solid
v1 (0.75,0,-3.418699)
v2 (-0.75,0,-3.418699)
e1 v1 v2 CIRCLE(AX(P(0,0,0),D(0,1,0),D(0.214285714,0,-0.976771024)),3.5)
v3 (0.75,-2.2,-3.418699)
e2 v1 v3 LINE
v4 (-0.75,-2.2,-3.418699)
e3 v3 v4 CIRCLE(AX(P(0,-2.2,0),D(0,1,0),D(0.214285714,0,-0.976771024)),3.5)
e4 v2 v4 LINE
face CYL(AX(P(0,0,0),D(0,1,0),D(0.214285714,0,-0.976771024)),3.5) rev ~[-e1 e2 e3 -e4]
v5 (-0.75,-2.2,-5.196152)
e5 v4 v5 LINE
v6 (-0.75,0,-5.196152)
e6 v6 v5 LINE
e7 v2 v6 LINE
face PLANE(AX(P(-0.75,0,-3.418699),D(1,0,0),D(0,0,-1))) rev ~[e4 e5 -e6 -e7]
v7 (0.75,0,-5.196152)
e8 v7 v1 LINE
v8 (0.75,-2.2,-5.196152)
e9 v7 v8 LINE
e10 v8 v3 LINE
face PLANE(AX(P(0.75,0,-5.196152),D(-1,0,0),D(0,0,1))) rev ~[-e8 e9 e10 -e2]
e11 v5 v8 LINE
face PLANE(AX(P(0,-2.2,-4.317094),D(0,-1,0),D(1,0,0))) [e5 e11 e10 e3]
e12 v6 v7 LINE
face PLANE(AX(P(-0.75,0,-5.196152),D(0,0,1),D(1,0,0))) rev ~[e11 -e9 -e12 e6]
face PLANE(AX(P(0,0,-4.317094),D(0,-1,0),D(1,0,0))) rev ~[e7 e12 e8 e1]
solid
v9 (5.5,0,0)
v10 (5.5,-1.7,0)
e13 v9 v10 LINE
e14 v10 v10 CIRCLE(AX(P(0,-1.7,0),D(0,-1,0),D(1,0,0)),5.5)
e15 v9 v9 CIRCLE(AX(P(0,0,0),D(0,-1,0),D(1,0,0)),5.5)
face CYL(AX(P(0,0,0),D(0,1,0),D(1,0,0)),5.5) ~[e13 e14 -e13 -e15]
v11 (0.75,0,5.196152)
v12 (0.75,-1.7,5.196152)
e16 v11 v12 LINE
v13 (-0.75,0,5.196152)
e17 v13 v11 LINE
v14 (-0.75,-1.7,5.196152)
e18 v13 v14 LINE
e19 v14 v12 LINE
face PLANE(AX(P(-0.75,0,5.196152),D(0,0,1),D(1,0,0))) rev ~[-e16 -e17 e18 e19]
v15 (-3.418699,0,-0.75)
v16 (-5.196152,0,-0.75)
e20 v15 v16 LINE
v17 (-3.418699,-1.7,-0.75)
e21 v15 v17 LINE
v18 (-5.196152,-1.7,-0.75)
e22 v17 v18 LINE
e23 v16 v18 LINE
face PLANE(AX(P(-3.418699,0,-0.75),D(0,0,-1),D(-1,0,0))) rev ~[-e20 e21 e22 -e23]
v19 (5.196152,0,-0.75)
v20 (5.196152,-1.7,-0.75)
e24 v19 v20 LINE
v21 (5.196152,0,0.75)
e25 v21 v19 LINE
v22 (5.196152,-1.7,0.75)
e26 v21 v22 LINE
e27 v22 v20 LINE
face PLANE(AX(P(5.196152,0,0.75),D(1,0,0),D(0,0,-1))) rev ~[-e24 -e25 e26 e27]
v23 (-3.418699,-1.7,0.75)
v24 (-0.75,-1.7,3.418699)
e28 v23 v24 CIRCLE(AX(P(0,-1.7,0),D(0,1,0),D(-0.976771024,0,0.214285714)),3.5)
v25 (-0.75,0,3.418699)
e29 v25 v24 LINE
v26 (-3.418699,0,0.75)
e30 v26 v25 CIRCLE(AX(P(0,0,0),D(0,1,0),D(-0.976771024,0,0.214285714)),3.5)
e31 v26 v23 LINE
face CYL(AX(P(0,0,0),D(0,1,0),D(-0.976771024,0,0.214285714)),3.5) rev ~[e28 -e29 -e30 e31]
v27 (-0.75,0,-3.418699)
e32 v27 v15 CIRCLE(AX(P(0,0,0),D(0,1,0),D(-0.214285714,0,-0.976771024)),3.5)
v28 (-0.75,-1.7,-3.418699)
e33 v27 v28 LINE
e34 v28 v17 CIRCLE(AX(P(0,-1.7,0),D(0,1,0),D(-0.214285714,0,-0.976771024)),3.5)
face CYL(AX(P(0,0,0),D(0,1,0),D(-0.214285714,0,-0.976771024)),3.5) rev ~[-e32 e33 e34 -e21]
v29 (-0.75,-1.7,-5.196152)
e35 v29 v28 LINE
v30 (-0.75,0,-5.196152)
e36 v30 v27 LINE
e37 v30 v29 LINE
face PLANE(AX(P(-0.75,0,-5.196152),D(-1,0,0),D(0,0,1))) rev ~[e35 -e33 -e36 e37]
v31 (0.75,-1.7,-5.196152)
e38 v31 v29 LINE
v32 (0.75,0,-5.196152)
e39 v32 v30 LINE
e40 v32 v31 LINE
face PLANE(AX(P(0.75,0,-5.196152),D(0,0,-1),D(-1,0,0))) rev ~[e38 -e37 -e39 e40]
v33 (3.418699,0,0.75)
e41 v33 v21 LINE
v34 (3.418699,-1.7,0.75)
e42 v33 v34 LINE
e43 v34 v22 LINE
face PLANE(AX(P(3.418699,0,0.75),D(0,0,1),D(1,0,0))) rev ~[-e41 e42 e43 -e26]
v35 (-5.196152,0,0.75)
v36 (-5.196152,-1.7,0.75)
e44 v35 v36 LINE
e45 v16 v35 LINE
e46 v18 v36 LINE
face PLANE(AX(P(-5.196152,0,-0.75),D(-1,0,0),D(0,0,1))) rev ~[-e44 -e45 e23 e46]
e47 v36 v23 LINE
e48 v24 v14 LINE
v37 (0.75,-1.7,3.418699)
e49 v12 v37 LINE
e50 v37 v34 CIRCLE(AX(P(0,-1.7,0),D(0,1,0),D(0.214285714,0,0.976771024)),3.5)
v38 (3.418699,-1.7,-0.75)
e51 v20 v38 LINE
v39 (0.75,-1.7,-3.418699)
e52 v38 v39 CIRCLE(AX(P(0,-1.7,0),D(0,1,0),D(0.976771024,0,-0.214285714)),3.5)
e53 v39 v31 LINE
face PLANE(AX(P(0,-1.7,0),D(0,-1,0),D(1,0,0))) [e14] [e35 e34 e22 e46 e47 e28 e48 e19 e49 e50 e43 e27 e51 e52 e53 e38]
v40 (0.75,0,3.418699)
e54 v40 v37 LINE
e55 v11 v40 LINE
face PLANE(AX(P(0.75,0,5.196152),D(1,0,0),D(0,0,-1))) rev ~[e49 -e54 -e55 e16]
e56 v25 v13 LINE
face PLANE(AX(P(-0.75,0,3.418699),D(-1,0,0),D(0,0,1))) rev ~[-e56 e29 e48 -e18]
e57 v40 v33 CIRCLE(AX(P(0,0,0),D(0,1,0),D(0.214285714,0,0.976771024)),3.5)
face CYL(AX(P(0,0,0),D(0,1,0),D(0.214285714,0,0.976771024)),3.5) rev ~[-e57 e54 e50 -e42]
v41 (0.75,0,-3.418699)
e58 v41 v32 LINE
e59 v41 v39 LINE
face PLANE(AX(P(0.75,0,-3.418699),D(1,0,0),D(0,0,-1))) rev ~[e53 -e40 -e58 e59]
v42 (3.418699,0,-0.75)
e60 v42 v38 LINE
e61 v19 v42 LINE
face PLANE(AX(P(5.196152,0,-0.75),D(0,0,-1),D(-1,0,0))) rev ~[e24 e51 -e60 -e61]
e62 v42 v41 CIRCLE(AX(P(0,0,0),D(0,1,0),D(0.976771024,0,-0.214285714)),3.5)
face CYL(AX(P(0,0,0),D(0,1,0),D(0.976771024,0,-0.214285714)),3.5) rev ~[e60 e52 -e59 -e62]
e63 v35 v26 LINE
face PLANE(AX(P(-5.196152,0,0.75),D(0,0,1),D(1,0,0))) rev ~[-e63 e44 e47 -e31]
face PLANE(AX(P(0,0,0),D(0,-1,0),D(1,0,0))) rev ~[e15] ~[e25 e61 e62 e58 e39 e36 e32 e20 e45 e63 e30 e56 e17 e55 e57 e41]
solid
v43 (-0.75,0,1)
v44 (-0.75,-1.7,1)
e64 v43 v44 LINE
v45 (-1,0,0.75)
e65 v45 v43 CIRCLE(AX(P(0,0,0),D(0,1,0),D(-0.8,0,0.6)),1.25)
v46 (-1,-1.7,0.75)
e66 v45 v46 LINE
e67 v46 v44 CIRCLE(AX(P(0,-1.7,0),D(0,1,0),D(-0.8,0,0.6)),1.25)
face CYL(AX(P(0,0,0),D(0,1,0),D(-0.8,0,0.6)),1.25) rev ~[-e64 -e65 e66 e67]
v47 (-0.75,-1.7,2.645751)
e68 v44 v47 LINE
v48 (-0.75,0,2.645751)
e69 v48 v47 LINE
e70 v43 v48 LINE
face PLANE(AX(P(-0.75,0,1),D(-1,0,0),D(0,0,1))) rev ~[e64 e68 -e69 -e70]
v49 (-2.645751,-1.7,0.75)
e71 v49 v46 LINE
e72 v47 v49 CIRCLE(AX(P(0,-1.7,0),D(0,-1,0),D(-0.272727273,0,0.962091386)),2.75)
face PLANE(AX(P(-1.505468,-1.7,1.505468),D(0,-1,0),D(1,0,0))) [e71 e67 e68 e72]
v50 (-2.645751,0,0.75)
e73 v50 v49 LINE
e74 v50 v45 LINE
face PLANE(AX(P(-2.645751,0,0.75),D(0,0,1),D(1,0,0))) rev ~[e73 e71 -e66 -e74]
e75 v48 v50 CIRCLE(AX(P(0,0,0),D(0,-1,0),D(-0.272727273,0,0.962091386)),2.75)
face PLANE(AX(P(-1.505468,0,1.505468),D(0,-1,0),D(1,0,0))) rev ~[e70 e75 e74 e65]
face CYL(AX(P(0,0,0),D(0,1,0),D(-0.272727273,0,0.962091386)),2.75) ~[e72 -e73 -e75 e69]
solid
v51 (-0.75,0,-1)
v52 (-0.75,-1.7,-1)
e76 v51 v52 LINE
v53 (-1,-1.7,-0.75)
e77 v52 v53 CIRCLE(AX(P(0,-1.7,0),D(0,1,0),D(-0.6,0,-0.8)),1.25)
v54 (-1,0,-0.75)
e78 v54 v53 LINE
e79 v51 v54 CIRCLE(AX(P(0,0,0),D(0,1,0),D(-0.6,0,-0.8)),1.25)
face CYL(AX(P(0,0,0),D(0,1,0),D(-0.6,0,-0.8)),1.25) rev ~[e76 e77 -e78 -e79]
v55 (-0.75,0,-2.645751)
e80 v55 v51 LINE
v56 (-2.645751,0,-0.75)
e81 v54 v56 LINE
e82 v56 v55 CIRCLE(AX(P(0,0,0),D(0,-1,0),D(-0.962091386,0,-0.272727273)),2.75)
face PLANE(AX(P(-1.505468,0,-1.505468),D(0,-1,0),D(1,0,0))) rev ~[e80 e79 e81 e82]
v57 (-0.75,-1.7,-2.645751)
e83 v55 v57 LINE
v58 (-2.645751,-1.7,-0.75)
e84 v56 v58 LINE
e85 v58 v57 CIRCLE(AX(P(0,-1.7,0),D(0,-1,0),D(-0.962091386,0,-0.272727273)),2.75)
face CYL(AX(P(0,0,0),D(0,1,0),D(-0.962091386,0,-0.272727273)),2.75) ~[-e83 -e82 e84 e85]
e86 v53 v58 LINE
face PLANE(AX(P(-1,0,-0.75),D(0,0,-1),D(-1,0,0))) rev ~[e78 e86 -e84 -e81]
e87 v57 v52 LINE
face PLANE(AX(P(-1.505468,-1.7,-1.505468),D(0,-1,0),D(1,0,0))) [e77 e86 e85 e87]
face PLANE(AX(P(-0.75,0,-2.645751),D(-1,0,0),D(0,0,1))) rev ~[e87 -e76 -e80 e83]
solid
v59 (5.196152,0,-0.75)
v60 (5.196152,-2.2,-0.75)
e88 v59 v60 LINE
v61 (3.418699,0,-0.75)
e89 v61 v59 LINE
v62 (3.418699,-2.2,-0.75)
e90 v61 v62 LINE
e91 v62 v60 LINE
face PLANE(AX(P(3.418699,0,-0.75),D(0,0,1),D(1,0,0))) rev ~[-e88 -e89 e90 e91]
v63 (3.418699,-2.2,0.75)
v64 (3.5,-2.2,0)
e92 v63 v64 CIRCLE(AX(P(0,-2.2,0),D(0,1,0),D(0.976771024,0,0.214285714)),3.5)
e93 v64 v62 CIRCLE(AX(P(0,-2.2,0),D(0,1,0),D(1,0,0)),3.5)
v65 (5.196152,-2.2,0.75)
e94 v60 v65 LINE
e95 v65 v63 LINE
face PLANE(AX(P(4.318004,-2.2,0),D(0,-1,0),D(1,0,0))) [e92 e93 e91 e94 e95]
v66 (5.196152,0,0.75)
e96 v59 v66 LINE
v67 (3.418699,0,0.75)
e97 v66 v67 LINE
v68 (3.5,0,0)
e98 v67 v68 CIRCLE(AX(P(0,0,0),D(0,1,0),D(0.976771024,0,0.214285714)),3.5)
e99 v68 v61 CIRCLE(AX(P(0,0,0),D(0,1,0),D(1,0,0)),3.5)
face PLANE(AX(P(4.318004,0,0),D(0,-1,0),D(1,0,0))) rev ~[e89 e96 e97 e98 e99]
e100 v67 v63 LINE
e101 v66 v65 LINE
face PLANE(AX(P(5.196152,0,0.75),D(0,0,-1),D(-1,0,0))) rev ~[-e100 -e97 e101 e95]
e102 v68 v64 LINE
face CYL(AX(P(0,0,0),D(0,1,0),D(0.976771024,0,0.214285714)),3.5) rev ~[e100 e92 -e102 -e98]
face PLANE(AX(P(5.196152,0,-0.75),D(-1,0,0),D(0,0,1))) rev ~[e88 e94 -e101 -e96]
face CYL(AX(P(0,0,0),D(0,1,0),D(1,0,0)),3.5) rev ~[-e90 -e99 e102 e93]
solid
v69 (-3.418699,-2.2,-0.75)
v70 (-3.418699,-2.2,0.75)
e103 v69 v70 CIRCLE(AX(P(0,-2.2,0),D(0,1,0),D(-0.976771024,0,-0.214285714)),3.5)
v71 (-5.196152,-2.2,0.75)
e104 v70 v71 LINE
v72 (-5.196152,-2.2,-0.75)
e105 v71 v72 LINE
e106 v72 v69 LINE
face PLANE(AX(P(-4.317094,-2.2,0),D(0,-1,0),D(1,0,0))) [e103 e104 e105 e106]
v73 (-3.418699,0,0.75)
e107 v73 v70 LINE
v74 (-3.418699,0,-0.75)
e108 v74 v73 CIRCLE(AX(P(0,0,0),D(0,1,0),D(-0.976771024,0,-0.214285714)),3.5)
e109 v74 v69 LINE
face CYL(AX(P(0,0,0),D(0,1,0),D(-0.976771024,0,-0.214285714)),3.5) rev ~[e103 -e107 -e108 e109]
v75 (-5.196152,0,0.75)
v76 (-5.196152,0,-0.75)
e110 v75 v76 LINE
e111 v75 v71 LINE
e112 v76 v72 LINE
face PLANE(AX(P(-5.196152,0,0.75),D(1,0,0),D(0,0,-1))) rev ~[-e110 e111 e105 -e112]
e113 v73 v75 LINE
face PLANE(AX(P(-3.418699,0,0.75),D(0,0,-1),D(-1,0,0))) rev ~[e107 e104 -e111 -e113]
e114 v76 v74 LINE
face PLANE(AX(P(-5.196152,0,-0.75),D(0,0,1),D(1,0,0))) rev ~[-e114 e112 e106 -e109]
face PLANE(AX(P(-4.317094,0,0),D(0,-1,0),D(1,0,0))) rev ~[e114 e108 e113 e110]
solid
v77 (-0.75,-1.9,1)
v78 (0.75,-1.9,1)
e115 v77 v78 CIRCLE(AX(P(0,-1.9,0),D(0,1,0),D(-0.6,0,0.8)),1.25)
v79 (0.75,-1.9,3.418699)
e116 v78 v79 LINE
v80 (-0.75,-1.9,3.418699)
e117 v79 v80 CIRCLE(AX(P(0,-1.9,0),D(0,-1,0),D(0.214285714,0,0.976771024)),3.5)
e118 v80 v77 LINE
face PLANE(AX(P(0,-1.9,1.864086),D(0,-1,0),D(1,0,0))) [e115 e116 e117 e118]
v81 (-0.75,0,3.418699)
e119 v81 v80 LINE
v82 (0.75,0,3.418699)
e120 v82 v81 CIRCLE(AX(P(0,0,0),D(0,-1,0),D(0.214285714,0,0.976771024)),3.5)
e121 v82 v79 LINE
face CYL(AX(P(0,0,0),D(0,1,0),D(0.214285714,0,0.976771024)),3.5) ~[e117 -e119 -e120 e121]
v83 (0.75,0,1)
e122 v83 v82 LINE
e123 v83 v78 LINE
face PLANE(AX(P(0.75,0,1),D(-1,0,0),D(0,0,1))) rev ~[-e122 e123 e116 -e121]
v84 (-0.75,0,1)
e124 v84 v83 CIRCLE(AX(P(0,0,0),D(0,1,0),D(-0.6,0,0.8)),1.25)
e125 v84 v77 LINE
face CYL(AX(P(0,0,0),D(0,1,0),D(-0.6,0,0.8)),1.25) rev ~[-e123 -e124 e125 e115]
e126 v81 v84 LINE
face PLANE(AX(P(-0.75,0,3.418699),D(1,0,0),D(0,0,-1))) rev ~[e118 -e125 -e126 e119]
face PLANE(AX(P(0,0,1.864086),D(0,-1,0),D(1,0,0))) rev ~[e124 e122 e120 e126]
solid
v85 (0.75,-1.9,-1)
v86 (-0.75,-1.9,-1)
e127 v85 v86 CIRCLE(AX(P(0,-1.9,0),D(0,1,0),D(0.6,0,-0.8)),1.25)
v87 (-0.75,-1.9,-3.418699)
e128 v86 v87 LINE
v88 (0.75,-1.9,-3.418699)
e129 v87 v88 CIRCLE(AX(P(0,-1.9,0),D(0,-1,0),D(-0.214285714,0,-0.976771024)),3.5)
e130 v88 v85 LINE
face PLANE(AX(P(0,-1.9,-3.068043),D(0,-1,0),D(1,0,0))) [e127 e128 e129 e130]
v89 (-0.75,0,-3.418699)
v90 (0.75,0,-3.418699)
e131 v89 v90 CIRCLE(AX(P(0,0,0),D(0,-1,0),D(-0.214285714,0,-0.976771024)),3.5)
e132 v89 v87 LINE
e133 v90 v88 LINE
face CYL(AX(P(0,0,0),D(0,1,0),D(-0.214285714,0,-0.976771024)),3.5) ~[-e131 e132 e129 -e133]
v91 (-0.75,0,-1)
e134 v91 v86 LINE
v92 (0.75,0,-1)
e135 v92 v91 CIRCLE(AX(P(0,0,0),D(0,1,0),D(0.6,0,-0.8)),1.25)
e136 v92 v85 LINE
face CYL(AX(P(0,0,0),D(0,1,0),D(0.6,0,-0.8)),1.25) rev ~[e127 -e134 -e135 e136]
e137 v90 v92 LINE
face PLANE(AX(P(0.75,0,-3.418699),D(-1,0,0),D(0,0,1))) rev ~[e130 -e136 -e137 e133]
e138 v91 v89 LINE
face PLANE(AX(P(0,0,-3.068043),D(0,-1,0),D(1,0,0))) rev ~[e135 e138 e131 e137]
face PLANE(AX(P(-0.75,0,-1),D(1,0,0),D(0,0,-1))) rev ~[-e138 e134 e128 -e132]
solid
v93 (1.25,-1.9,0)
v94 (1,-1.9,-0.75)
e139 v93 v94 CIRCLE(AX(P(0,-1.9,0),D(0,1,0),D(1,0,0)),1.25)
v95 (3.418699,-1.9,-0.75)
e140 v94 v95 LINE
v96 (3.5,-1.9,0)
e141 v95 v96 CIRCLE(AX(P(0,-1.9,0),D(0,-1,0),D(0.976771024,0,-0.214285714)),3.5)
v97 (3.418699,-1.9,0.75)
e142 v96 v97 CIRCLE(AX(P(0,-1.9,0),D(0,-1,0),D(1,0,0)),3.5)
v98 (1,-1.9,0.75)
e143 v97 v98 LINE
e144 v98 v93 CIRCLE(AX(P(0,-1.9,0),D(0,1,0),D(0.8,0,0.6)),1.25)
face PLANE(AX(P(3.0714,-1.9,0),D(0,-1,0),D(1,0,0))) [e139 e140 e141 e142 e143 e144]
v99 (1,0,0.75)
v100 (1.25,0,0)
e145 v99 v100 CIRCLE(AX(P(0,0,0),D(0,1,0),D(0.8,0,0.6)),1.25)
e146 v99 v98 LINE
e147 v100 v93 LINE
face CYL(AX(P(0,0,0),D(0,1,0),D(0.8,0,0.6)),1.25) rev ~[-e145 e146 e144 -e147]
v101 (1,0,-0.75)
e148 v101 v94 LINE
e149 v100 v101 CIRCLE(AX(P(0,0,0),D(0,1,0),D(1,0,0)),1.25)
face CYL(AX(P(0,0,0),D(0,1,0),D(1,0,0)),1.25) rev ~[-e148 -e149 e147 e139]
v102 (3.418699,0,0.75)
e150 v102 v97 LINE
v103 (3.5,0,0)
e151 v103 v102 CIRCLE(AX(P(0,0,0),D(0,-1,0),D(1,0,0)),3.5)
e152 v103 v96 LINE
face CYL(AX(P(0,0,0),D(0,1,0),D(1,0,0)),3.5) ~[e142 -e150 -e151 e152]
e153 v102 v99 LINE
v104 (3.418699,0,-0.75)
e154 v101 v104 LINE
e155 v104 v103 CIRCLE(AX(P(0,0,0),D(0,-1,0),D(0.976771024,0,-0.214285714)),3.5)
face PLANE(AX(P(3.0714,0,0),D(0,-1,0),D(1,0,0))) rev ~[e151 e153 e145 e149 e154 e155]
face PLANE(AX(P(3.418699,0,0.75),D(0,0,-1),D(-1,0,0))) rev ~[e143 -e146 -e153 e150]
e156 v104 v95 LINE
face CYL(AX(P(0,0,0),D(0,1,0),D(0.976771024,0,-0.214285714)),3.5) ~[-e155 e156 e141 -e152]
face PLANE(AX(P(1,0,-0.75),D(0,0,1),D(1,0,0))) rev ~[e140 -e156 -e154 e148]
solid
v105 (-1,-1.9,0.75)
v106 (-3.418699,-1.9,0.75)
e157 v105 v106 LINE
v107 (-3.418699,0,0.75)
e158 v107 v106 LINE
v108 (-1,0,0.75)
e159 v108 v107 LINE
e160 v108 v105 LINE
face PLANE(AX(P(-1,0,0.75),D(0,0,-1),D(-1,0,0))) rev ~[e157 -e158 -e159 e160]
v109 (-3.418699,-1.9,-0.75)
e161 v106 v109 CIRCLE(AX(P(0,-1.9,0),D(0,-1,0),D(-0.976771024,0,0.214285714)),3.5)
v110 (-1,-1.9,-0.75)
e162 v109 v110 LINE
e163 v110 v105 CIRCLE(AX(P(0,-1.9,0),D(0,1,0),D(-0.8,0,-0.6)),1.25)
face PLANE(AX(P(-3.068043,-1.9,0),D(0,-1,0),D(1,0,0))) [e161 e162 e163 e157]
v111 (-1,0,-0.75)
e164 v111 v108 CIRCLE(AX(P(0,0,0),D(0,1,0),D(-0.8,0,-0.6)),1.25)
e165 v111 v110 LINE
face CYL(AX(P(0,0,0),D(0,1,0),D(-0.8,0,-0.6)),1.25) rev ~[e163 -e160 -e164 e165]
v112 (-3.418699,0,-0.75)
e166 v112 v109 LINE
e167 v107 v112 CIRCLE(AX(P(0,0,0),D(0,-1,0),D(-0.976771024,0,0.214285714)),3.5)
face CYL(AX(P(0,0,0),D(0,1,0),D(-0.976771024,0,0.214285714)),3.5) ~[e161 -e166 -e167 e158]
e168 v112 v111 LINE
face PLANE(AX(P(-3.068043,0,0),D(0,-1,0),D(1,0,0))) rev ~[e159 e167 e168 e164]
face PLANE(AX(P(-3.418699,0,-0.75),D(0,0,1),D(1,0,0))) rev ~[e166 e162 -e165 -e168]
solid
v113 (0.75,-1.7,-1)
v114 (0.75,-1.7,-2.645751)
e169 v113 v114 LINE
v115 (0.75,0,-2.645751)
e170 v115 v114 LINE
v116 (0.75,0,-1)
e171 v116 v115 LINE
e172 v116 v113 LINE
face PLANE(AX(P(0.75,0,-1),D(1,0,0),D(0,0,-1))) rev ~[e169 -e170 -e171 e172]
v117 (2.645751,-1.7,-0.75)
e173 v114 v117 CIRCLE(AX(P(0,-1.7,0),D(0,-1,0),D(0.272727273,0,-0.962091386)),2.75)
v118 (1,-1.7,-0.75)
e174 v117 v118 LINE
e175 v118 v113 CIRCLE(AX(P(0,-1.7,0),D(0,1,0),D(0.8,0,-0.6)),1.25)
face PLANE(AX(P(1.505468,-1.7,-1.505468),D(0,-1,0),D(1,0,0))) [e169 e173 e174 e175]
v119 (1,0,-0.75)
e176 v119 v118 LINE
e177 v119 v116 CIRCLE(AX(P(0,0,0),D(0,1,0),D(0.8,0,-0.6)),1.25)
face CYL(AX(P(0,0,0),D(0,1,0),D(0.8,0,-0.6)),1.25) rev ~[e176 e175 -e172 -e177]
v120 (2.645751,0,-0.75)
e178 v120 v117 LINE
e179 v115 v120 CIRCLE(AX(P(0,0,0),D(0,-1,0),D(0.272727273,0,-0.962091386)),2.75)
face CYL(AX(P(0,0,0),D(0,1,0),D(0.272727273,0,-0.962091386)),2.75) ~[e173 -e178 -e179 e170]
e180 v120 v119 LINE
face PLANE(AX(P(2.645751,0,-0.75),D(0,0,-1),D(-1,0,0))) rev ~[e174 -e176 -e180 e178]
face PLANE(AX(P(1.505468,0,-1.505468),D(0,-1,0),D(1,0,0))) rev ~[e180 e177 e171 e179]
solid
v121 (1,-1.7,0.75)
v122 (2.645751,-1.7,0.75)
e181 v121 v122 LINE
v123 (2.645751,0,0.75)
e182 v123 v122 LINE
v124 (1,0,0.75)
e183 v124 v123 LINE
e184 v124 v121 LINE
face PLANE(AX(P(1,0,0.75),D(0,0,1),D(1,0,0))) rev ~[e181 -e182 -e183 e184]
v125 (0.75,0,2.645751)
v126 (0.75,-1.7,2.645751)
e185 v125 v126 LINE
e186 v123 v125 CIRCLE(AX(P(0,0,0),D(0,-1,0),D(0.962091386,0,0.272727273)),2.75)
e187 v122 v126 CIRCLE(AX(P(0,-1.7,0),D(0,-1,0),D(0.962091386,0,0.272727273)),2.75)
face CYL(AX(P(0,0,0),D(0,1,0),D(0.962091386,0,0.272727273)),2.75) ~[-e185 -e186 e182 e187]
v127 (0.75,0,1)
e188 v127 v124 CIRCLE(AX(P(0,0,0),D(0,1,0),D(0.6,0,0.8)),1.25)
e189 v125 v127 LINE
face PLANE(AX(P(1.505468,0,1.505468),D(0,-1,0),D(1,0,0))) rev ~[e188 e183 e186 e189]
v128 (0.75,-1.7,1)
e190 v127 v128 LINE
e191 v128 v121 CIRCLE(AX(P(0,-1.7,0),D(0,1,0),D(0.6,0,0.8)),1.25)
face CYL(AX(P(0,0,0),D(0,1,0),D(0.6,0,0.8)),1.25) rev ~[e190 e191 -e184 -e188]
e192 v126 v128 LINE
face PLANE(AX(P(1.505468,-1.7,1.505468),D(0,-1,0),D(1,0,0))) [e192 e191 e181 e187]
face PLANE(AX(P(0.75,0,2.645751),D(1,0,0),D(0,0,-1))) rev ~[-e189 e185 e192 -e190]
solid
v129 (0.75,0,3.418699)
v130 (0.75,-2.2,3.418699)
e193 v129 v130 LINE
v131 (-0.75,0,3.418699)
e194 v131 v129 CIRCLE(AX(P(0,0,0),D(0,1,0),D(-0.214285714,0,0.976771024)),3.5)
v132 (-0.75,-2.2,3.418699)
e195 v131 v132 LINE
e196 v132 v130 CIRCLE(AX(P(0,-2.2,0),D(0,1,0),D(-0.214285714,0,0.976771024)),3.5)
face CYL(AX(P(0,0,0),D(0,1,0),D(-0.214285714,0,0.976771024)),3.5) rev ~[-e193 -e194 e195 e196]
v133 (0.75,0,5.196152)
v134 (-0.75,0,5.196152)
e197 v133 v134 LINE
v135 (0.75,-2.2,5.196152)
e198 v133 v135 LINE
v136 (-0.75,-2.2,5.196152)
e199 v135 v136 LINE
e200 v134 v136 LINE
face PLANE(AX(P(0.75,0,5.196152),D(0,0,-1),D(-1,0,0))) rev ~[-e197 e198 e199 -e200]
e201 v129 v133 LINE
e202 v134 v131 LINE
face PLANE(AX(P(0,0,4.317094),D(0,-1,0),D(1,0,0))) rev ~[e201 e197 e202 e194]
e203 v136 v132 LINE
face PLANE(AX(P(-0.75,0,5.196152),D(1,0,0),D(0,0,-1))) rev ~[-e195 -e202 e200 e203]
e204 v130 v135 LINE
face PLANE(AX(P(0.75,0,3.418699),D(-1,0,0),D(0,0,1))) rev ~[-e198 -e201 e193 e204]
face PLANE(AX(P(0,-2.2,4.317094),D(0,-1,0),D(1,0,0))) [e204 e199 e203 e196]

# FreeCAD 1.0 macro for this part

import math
import FreeCAD as App
import Part
import Sketcher

V = App.Vector

doc = App.newDocument("Part")
body = doc.addObject("PartDesign::Body", "Body")

sketch1 = doc.addObject("Sketcher::SketchObject", "Sketch")
body.addObject(sketch1)
sketch1.AttachmentSupport = (doc.XZ_Plane, [""])
sketch1.MapMode = "FlatFace"
sketch1.addGeometry([
    Part.ArcOfCircle(Part.Circle(V(0, 0, 0), V(0, 0, 1), 1.25), math.radians(36.87), math.radians(53.13)),
    Part.LineSegment(V(1, 0.75, 0), V(2.65, 0.75, 0)),
    Part.ArcOfCircle(Part.Circle(V(0, 0, 0), V(0, 0, 1), 2.75), math.radians(16), math.radians(74)),
    Part.LineSegment(V(0.75, 2.65, 0), V(0.75, 1, 0)),
], False)
sketch1.addConstraint([
    Sketcher.Constraint("Coincident", 0, 1, 1, 1),
    Sketcher.Constraint("Coincident", 1, 2, 2, 1),
    Sketcher.Constraint("Coincident", 2, 2, 3, 1),
    Sketcher.Constraint("Coincident", 3, 2, 0, 2),
    Sketcher.Constraint("Horizontal", 1),
    Sketcher.Constraint("Vertical", 3),
    Sketcher.Constraint("Coincident", 0, 3, -1, 1),
    Sketcher.Constraint("Coincident", 2, 3, -1, 1),
    Sketcher.Constraint("Equal", 1, 3),
    Sketcher.Constraint("Radius", 0, 1.25),
    Sketcher.Constraint("Radius", 2, 2.75),
    Sketcher.Constraint("DistanceX", -1, 1, 0, 1, 1.0),
])
pad1 = doc.addObject("PartDesign::Pad", "Pad")
body.addObject(pad1)
pad1.Profile = sketch1
pad1.Length = 1.7
body2 = doc.addObject("PartDesign::Body", "Body001")

sketch2 = doc.addObject("Sketcher::SketchObject", "Sketch001")
body2.addObject(sketch2)
sketch2.AttachmentSupport = (doc.getObject("XZ_Plane001"), [""])
sketch2.MapMode = "FlatFace"
sketch2.addGeometry([
    Part.Circle(V(0, 0, 0), V(0, 0, 1), 5.5),
    Part.LineSegment(V(0.8, 5.2, 0), V(0.8, 3.4, 0)),
    Part.ArcOfCircle(Part.Circle(V(0, 0, 0), V(0, 0, 1), 3.5), math.radians(12), math.radians(78)),
    Part.LineSegment(V(3.4, 0.8, 0), V(5.2, 0.8, 0)),
    Part.LineSegment(V(5.2, 0.8, 0), V(5.2, -0.8, 0)),
    Part.LineSegment(V(5.2, -0.8, 0), V(3.4, -0.8, 0)),
    Part.ArcOfCircle(Part.Circle(V(0, 0, 0), V(0, 0, 1), 3.5), math.radians(-78), math.radians(-12)),
    Part.LineSegment(V(0.8, -3.4, 0), V(0.8, -5.2, 0)),
    Part.LineSegment(V(0.8, -5.2, 0), V(-0.8, -5.2, 0)),
    Part.LineSegment(V(-0.8, -5.2, 0), V(-0.8, -3.4, 0)),
    Part.ArcOfCircle(Part.Circle(V(0, 0, 0), V(0, 0, 1), 3.5), math.radians(-168), math.radians(-102)),
    Part.LineSegment(V(-3.4, -0.8, 0), V(-5.2, -0.8, 0)),
    Part.LineSegment(V(-5.2, -0.8, 0), V(-5.2, 0.8, 0)),
    Part.LineSegment(V(-5.2, 0.8, 0), V(-3.4, 0.8, 0)),
    Part.ArcOfCircle(Part.Circle(V(0, 0, 0), V(0, 0, 1), 3.5), math.radians(102), math.radians(168)),
    Part.LineSegment(V(-0.8, 3.4, 0), V(-0.8, 5.2, 0)),
    Part.LineSegment(V(-0.8, 5.2, 0), V(0.8, 5.2, 0)),
], False)
sketch2.addConstraint([
    Sketcher.Constraint("Coincident", 1, 2, 2, 2),
    Sketcher.Constraint("Coincident", 2, 1, 3, 1),
    Sketcher.Constraint("Coincident", 3, 2, 4, 1),
    Sketcher.Constraint("Coincident", 4, 2, 5, 1),
    Sketcher.Constraint("Coincident", 5, 2, 6, 2),
    Sketcher.Constraint("Coincident", 6, 1, 7, 1),
    Sketcher.Constraint("Coincident", 7, 2, 8, 1),
    Sketcher.Constraint("Coincident", 8, 2, 9, 1),
    Sketcher.Constraint("Coincident", 9, 2, 10, 2),
    Sketcher.Constraint("Coincident", 10, 1, 11, 1),
    Sketcher.Constraint("Coincident", 11, 2, 12, 1),
    Sketcher.Constraint("Coincident", 12, 2, 13, 1),
    Sketcher.Constraint("Coincident", 13, 2, 14, 2),
    Sketcher.Constraint("Coincident", 14, 1, 15, 1),
    Sketcher.Constraint("Coincident", 15, 2, 16, 1),
    Sketcher.Constraint("Coincident", 16, 2, 1, 1),
    Sketcher.Constraint("Vertical", 1),
    Sketcher.Constraint("Horizontal", 3),
    Sketcher.Constraint("Vertical", 4),
    Sketcher.Constraint("Horizontal", 5),
    Sketcher.Constraint("Vertical", 7),
    Sketcher.Constraint("Horizontal", 8),
    Sketcher.Constraint("Vertical", 9),
    Sketcher.Constraint("Horizontal", 11),
    Sketcher.Constraint("Vertical", 12),
    Sketcher.Constraint("Horizontal", 13),
    Sketcher.Constraint("Vertical", 15),
    Sketcher.Constraint("Horizontal", 16),
    Sketcher.Constraint("Coincident", 0, 3, -1, 1),
    Sketcher.Constraint("Coincident", 2, 3, -1, 1),
    Sketcher.Constraint("Coincident", 6, 3, -1, 1),
    Sketcher.Constraint("Coincident", 10, 3, -1, 1),
    Sketcher.Constraint("Coincident", 14, 3, -1, 1),
    Sketcher.Constraint("Equal", 2, 6),
    Sketcher.Constraint("Equal", 6, 10),
    Sketcher.Constraint("Equal", 10, 14),
    Sketcher.Constraint("Symmetric", 3, 2, 11, 2, -1, 1),
    Sketcher.Constraint("Symmetric", 7, 2, 15, 2, -1, 1),
    Sketcher.Constraint("Horizontal", 6, 1, 9, 2),
    Sketcher.Constraint("Horizontal", 5, 2, 10, 1),
    Sketcher.Constraint("Horizontal", 3, 2, 12, 2),
    Sketcher.Constraint("Horizontal", 1, 2, 14, 1),
    Sketcher.Constraint("Equal", 13, 1),
    Sketcher.Constraint("Equal", 16, 4),
    Sketcher.Constraint("Diameter", 0, 11.0),
    Sketcher.Constraint("Radius", 2, 3.5),
    Sketcher.Constraint("DistanceX", 8, 2, 8, 1, 1.5),
    Sketcher.Constraint("DistanceX", 3, 1, 3, 2, 1.777454),
])
pad2 = doc.addObject("PartDesign::Pad", "Pad001")
body2.addObject(pad2)
pad2.Profile = sketch2
pad2.Length = 1.7
body3 = doc.addObject("PartDesign::Body", "Body002")

sketch3 = doc.addObject("Sketcher::SketchObject", "Sketch002")
body3.addObject(sketch3)
sketch3.AttachmentSupport = (doc.getObject("XZ_Plane002"), [""])
sketch3.MapMode = "FlatFace"
sketch3.addGeometry([
    Part.ArcOfCircle(Part.Circle(V(0, 0, 0), V(0, 0, 1), 1.25), math.radians(126.87), math.radians(143.13)),
    Part.LineSegment(V(-0.75, 1, 0), V(-0.75, 2.65, 0)),
    Part.ArcOfCircle(Part.Circle(V(0, 0, 0), V(0, 0, 1), 2.75), math.radians(106), math.radians(164)),
    Part.LineSegment(V(-2.65, 0.75, 0), V(-1, 0.75, 0)),
], False)
sketch3.addConstraint([
    Sketcher.Constraint("Coincident", 0, 1, 1, 1),
    Sketcher.Constraint("Coincident", 1, 2, 2, 1),
    Sketcher.Constraint("Coincident", 2, 2, 3, 1),
    Sketcher.Constraint("Coincident", 3, 2, 0, 2),
    Sketcher.Constraint("Vertical", 1),
    Sketcher.Constraint("Horizontal", 3),
    Sketcher.Constraint("Coincident", 0, 3, -1, 1),
    Sketcher.Constraint("Coincident", 2, 3, -1, 1),
    Sketcher.Constraint("Equal", 3, 1),
    Sketcher.Constraint("Radius", 0, 1.25),
    Sketcher.Constraint("Radius", 2, 2.75),
    Sketcher.Constraint("DistanceY", -1, 1, 0, 1, 1.0),
])
pad3 = doc.addObject("PartDesign::Pad", "Pad002")
body3.addObject(pad3)
pad3.Profile = sketch3
pad3.Length = 1.7
body4 = doc.addObject("PartDesign::Body", "Body003")

sketch4 = doc.addObject("Sketcher::SketchObject", "Sketch003")
body4.addObject(sketch4)
sketch4.AttachmentSupport = (doc.getObject("XZ_Plane003"), [""])
sketch4.MapMode = "FlatFace"
sketch4.addGeometry([
    Part.LineSegment(V(-0.75, -2.65, 0), V(-0.75, -1, 0)),
    Part.ArcOfCircle(Part.Circle(V(0, 0, 0), V(0, 0, 1), 1.25), math.radians(-143.13), math.radians(-126.87)),
    Part.LineSegment(V(-1, -0.75, 0), V(-2.65, -0.75, 0)),
    Part.ArcOfCircle(Part.Circle(V(0, 0, 0), V(0, 0, 1), 2.75), math.radians(-164), math.radians(-106)),
], False)
sketch4.addConstraint([
    Sketcher.Constraint("Coincident", 0, 2, 1, 2),
    Sketcher.Constraint("Coincident", 1, 1, 2, 1),
    Sketcher.Constraint("Coincident", 2, 2, 3, 1),
    Sketcher.Constraint("Coincident", 3, 2, 0, 1),
    Sketcher.Constraint("Vertical", 0),
    Sketcher.Constraint("Horizontal", 2),
    Sketcher.Constraint("Coincident", 1, 3, -1, 1),
    Sketcher.Constraint("Coincident", 3, 3, -1, 1),
    Sketcher.Constraint("Equal", 2, 0),
    Sketcher.Constraint("Radius", 1, 1.25),
    Sketcher.Constraint("Radius", 3, 2.75),
    Sketcher.Constraint("DistanceY", 0, 2, -1, 1, 1.0),
])
pad4 = doc.addObject("PartDesign::Pad", "Pad003")
body4.addObject(pad4)
pad4.Profile = sketch4
pad4.Length = 1.7
body5 = doc.addObject("PartDesign::Body", "Body004")

sketch5 = doc.addObject("Sketcher::SketchObject", "Sketch004")
body5.addObject(sketch5)
sketch5.AttachmentSupport = (doc.getObject("XZ_Plane004"), [""])
sketch5.MapMode = "FlatFace"
sketch5.addGeometry([
    Part.LineSegment(V(2.65, -0.75, 0), V(1, -0.75, 0)),
    Part.ArcOfCircle(Part.Circle(V(0, 0, 0), V(0, 0, 1), 1.25), math.radians(-53.13), math.radians(-36.87)),
    Part.LineSegment(V(0.75, -1, 0), V(0.75, -2.65, 0)),
    Part.ArcOfCircle(Part.Circle(V(0, 0, 0), V(0, 0, 1), 2.75), math.radians(-74), math.radians(-16)),
], False)
sketch5.addConstraint([
    Sketcher.Constraint("Coincident", 0, 2, 1, 2),
    Sketcher.Constraint("Coincident", 1, 1, 2, 1),
    Sketcher.Constraint("Coincident", 2, 2, 3, 1),
    Sketcher.Constraint("Coincident", 3, 2, 0, 1),
    Sketcher.Constraint("Horizontal", 0),
    Sketcher.Constraint("Vertical", 2),
    Sketcher.Constraint("Coincident", 1, 3, -1, 1),
    Sketcher.Constraint("Coincident", 3, 3, -1, 1),
    Sketcher.Constraint("Equal", 0, 2),
    Sketcher.Constraint("Radius", 1, 1.25),
    Sketcher.Constraint("Radius", 3, 2.75),
    Sketcher.Constraint("DistanceX", -1, 1, 0, 2, 1.0),
])
pad5 = doc.addObject("PartDesign::Pad", "Pad004")
body5.addObject(pad5)
pad5.Profile = sketch5
pad5.Length = 1.7
body6 = doc.addObject("PartDesign::Body", "Body005")

sketch6 = doc.addObject("Sketcher::SketchObject", "Sketch005")
body6.addObject(sketch6)
sketch6.AttachmentSupport = (doc.getObject("XZ_Plane005"), [""])
sketch6.MapMode = "FlatFace"
sketch6.addGeometry([
    Part.ArcOfCircle(Part.Circle(V(0, 0, 0), V(0, 0, 1), 3.5), math.radians(168), math.radians(192)),
    Part.LineSegment(V(-3.4, -0.8, 0), V(-1, -0.8, 0)),
    Part.ArcOfCircle(Part.Circle(V(0, 0, 0), V(0, 0, 1), 1.2), math.radians(143), math.radians(217)),
    Part.LineSegment(V(-1, 0.8, 0), V(-3.4, 0.8, 0)),
], False)
sketch6.addConstraint([
    Sketcher.Constraint("Coincident", 0, 2, 1, 1),
    Sketcher.Constraint("Coincident", 1, 2, 2, 2),
    Sketcher.Constraint("Coincident", 2, 1, 3, 1),
    Sketcher.Constraint("Coincident", 3, 2, 0, 1),
    Sketcher.Constraint("Horizontal", 1),
    Sketcher.Constraint("Horizontal", 3),
    Sketcher.Constraint("Coincident", 0, 3, -1, 1),
    Sketcher.Constraint("Coincident", 2, 3, -1, 1),
    Sketcher.Constraint("Vertical", 1, 2, 2, 1),
    Sketcher.Constraint("Radius", 0, 3.5),
    Sketcher.Constraint("Radius", 2, 1.25),
    Sketcher.Constraint("DistanceX", 1, 2, -1, 1, 1.0),
])
pad6 = doc.addObject("PartDesign::Pad", "Pad005")
body6.addObject(pad6)
pad6.Profile = sketch6
pad6.Length = 1.9
body7 = doc.addObject("PartDesign::Body", "Body006")

sketch7 = doc.addObject("Sketcher::SketchObject", "Sketch006")
body7.addObject(sketch7)
sketch7.AttachmentSupport = (doc.getObject("XZ_Plane006"), [""])
sketch7.MapMode = "FlatFace"
sketch7.addGeometry([
    Part.ArcOfCircle(Part.Circle(V(0, 0, 0), V(0, 0, 1), 1.2), math.radians(53), math.radians(127)),
    Part.LineSegment(V(0.8, 1, 0), V(0.8, 3.4, 0)),
    Part.ArcOfCircle(Part.Circle(V(0, 0, 0), V(0, 0, 1), 3.5), math.radians(78), math.radians(102)),
    Part.LineSegment(V(-0.8, 3.4, 0), V(-0.8, 1, 0)),
], False)
sketch7.addConstraint([
    Sketcher.Constraint("Coincident", 0, 1, 1, 1),
    Sketcher.Constraint("Coincident", 1, 2, 2, 1),
    Sketcher.Constraint("Coincident", 2, 2, 3, 1),
    Sketcher.Constraint("Coincident", 3, 2, 0, 2),
    Sketcher.Constraint("Vertical", 1),
    Sketcher.Constraint("Vertical", 3),
    Sketcher.Constraint("Coincident", 0, 3, -1, 1),
    Sketcher.Constraint("Coincident", 2, 3, -1, 1),
    Sketcher.Constraint("Horizontal", 1, 2, 2, 2),
    Sketcher.Constraint("Radius", 2, 3.5),
    Sketcher.Constraint("Radius", 0, 1.25),
    Sketcher.Constraint("DistanceY", -1, 1, 0, 1, 1.0),
])
pad7 = doc.addObject("PartDesign::Pad", "Pad006")
body7.addObject(pad7)
pad7.Profile = sketch7
pad7.Length = 1.9
body8 = doc.addObject("PartDesign::Body", "Body007")

sketch8 = doc.addObject("Sketcher::SketchObject", "Sketch007")
body8.addObject(sketch8)
sketch8.AttachmentSupport = (doc.getObject("XZ_Plane007"), [""])
sketch8.MapMode = "FlatFace"
sketch8.addGeometry([
    Part.LineSegment(V(3.4, 0.8, 0), V(1, 0.8, 0)),
    Part.ArcOfCircle(Part.Circle(V(0, 0, 0), V(0, 0, 1), 1.2), math.radians(0), math.radians(37)),
    Part.ArcOfCircle(Part.Circle(V(0, 0, 0), V(0, 0, 1), 1.2), math.radians(-37), math.radians(0)),
    Part.LineSegment(V(1, -0.8, 0), V(3.4, -0.8, 0)),
    Part.ArcOfCircle(Part.Circle(V(0, 0, 0), V(0, 0, 1), 3.5), math.radians(-12.37), math.radians(0)),
    Part.ArcOfCircle(Part.Circle(V(0, 0, 0), V(0, 0, 1), 3.5), math.radians(0), math.radians(12.37)),
], False)
sketch8.addConstraint([
    Sketcher.Constraint("Coincident", 0, 2, 1, 2),
    Sketcher.Constraint("Tangent", 1, 1, 2, 2),
    Sketcher.Constraint("Coincident", 2, 1, 3, 1),
    Sketcher.Constraint("Coincident", 3, 2, 4, 1),
    Sketcher.Constraint("Tangent", 4, 2, 5, 1),
    Sketcher.Constraint("Coincident", 5, 2, 0, 1),
    Sketcher.Constraint("Horizontal", 0),
    Sketcher.Constraint("Horizontal", 3),
    Sketcher.Constraint("Coincident", 1, 3, -1, 1),
    Sketcher.Constraint("Coincident", 4, 3, -1, 1),
    Sketcher.Constraint("Equal", 1, 2),
    Sketcher.Constraint("Equal", 4, 5),
    Sketcher.Constraint("PointOnObject", 1, 1, -1),
    Sketcher.Constraint("PointOnObject", 4, 2, -1),
    Sketcher.Constraint("Vertical", 0, 2, 2, 1),
    Sketcher.Constraint("Radius", 4, 3.5),
    Sketcher.Constraint("Radius", 1, 1.25),
    Sketcher.Constraint("DistanceX", -1, 1, 0, 2, 1.0),
])
pad8 = doc.addObject("PartDesign::Pad", "Pad007")
body8.addObject(pad8)
pad8.Profile = sketch8
pad8.Length = 1.9
body9 = doc.addObject("PartDesign::Body", "Body008")

sketch9 = doc.addObject("Sketcher::SketchObject", "Sketch008")
body9.addObject(sketch9)
sketch9.AttachmentSupport = (doc.getObject("XZ_Plane008"), [""])
sketch9.MapMode = "FlatFace"
sketch9.addGeometry([
    Part.LineSegment(V(0.8, -3.4, 0), V(0.8, -1, 0)),
    Part.ArcOfCircle(Part.Circle(V(0, 0, 0), V(0, 0, 1), 1.2), math.radians(-127), math.radians(-53)),
    Part.LineSegment(V(-0.8, -1, 0), V(-0.8, -3.4, 0)),
    Part.ArcOfCircle(Part.Circle(V(0, 0, 0), V(0, 0, 1), 3.5), math.radians(-102), math.radians(-78)),
], False)
sketch9.addConstraint([
    Sketcher.Constraint("Coincident", 0, 2, 1, 2),
    Sketcher.Constraint("Coincident", 1, 1, 2, 1),
    Sketcher.Constraint("Coincident", 2, 2, 3, 1),
    Sketcher.Constraint("Coincident", 3, 2, 0, 1),
    Sketcher.Constraint("Vertical", 0),
    Sketcher.Constraint("Vertical", 2),
    Sketcher.Constraint("Coincident", 1, 3, -1, 1),
    Sketcher.Constraint("Coincident", 3, 3, -1, 1),
    Sketcher.Constraint("Horizontal", 0, 2, 1, 1),
    Sketcher.Constraint("Radius", 3, 3.5),
    Sketcher.Constraint("Radius", 1, 1.25),
    Sketcher.Constraint("DistanceY", 0, 2, -1, 1, 1.0),
])
pad9 = doc.addObject("PartDesign::Pad", "Pad008")
body9.addObject(pad9)
pad9.Profile = sketch9
pad9.Length = 1.9
body10 = doc.addObject("PartDesign::Body", "Body009")

sketch10 = doc.addObject("Sketcher::SketchObject", "Sketch009")
body10.addObject(sketch10)
sketch10.AttachmentSupport = (doc.getObject("XZ_Plane009"), [""])
sketch10.MapMode = "FlatFace"
sketch10.addGeometry([
    Part.ArcOfCircle(Part.Circle(V(0, 0, 0), V(0, 0, 1), 3.5), math.radians(168), math.radians(192)),
    Part.LineSegment(V(-3.4, 0.8, 0), V(-5.2, 0.8, 0)),
    Part.LineSegment(V(-5.2, 0.8, 0), V(-5.2, -0.8, 0)),
    Part.LineSegment(V(-5.2, -0.8, 0), V(-3.4, -0.8, 0)),
], False)
sketch10.addConstraint([
    Sketcher.Constraint("Coincident", 0, 1, 1, 1),
    Sketcher.Constraint("Coincident", 1, 2, 2, 1),
    Sketcher.Constraint("Coincident", 2, 2, 3, 1),
    Sketcher.Constraint("Coincident", 3, 2, 0, 2),
    Sketcher.Constraint("Horizontal", 1),
    Sketcher.Constraint("Vertical", 2),
    Sketcher.Constraint("Horizontal", 3),
    Sketcher.Constraint("Coincident", 0, 3, -1, 1),
    Sketcher.Constraint("Vertical", 0, 1, 3, 2),
    Sketcher.Constraint("Radius", 0, 3.5),
    Sketcher.Constraint("DistanceY", 2, 2, 2, 1, 1.5),
    Sketcher.Constraint("DistanceX", 1, 2, 1, 1, 1.777454),
])
pad10 = doc.addObject("PartDesign::Pad", "Pad009")
body10.addObject(pad10)
pad10.Profile = sketch10
pad10.Length = 2.2
body11 = doc.addObject("PartDesign::Body", "Body010")

sketch11 = doc.addObject("Sketcher::SketchObject", "Sketch010")
body11.addObject(sketch11)
sketch11.AttachmentSupport = (doc.getObject("XZ_Plane010"), [""])
sketch11.MapMode = "FlatFace"
sketch11.addGeometry([
    Part.ArcOfCircle(Part.Circle(V(0, 0, 0), V(0, 0, 1), 3.5), math.radians(78), math.radians(102)),
    Part.LineSegment(V(0.8, 3.4, 0), V(0.8, 5.2, 0)),
    Part.LineSegment(V(0.8, 5.2, 0), V(-0.8, 5.2, 0)),
    Part.LineSegment(V(-0.8, 5.2, 0), V(-0.8, 3.4, 0)),
], False)
sketch11.addConstraint([
    Sketcher.Constraint("Coincident", 0, 1, 1, 1),
    Sketcher.Constraint("Coincident", 1, 2, 2, 1),
    Sketcher.Constraint("Coincident", 2, 2, 3, 1),
    Sketcher.Constraint("Coincident", 3, 2, 0, 2),
    Sketcher.Constraint("Vertical", 1),
    Sketcher.Constraint("Horizontal", 2),
    Sketcher.Constraint("Vertical", 3),
    Sketcher.Constraint("Coincident", 0, 3, -1, 1),
    Sketcher.Constraint("Horizontal", 0, 1, 3, 2),
    Sketcher.Constraint("Radius", 0, 3.5),
    Sketcher.Constraint("DistanceX", 2, 2, 2, 1, 1.5),
    Sketcher.Constraint("DistanceY", 1, 1, 1, 2, 1.777454),
])
pad11 = doc.addObject("PartDesign::Pad", "Pad010")
body11.addObject(pad11)
pad11.Profile = sketch11
pad11.Length = 2.2
body12 = doc.addObject("PartDesign::Body", "Body011")

sketch12 = doc.addObject("Sketcher::SketchObject", "Sketch011")
body12.addObject(sketch12)
sketch12.AttachmentSupport = (doc.getObject("XZ_Plane011"), [""])
sketch12.MapMode = "FlatFace"
sketch12.addGeometry([
    Part.LineSegment(V(5.2, 0.8, 0), V(3.4, 0.8, 0)),
    Part.ArcOfCircle(Part.Circle(V(0, 0, 0), V(0, 0, 1), 3.5), math.radians(0), math.radians(12.37)),
    Part.ArcOfCircle(Part.Circle(V(0, 0, 0), V(0, 0, 1), 3.5), math.radians(-12.37), math.radians(0)),
    Part.LineSegment(V(3.4, -0.8, 0), V(5.2, -0.8, 0)),
    Part.LineSegment(V(5.2, -0.8, 0), V(5.2, 0.8, 0)),
], False)
sketch12.addConstraint([
    Sketcher.Constraint("Coincident", 0, 2, 1, 2),
    Sketcher.Constraint("Tangent", 1, 1, 2, 2),
    Sketcher.Constraint("Coincident", 2, 1, 3, 1),
    Sketcher.Constraint("Coincident", 3, 2, 4, 1),
    Sketcher.Constraint("Coincident", 4, 2, 0, 1),
    Sketcher.Constraint("Horizontal", 0),
    Sketcher.Constraint("Horizontal", 3),
    Sketcher.Constraint("Vertical", 4),
    Sketcher.Constraint("Coincident", 1, 3, -1, 1),
    Sketcher.Constraint("Equal", 1, 2),
    Sketcher.Constraint("PointOnObject", 1, 1, -1),
    Sketcher.Constraint("Vertical", 0, 2, 2, 1),
    Sketcher.Constraint("Radius", 1, 3.5),
    Sketcher.Constraint("DistanceY", 4, 1, 4, 2, 1.5),
    Sketcher.Constraint("DistanceX", 0, 2, 0, 1, 1.777454),
])
pad12 = doc.addObject("PartDesign::Pad", "Pad011")
body12.addObject(pad12)
pad12.Profile = sketch12
pad12.Length = 2.2
body13 = doc.addObject("PartDesign::Body", "Body012")

sketch13 = doc.addObject("Sketcher::SketchObject", "Sketch012")
body13.addObject(sketch13)
sketch13.AttachmentSupport = (doc.getObject("XZ_Plane012"), [""])
sketch13.MapMode = "FlatFace"
sketch13.addGeometry([
    Part.LineSegment(V(0.8, -5.2, 0), V(0.8, -3.4, 0)),
    Part.ArcOfCircle(Part.Circle(V(0, 0, 0), V(0, 0, 1), 3.5), math.radians(-102), math.radians(-78)),
    Part.LineSegment(V(-0.8, -3.4, 0), V(-0.8, -5.2, 0)),
    Part.LineSegment(V(-0.8, -5.2, 0), V(0.8, -5.2, 0)),
], False)
sketch13.addConstraint([
    Sketcher.Constraint("Coincident", 0, 2, 1, 2),
    Sketcher.Constraint("Coincident", 1, 1, 2, 1),
    Sketcher.Constraint("Coincident", 2, 2, 3, 1),
    Sketcher.Constraint("Coincident", 3, 2, 0, 1),
    Sketcher.Constraint("Vertical", 0),
    Sketcher.Constraint("Vertical", 2),
    Sketcher.Constraint("Horizontal", 3),
    Sketcher.Constraint("Coincident", 1, 3, -1, 1),
    Sketcher.Constraint("Horizontal", 0, 2, 1, 1),
    Sketcher.Constraint("Radius", 1, 3.5),
    Sketcher.Constraint("DistanceX", 3, 1, 3, 2, 1.5),
    Sketcher.Constraint("DistanceY", 0, 1, 0, 2, 1.777454),
])
pad13 = doc.addObject("PartDesign::Pad", "Pad012")
body13.addObject(pad13)
pad13.Profile = sketch13
pad13.Length = 2.2

doc.recompute()
